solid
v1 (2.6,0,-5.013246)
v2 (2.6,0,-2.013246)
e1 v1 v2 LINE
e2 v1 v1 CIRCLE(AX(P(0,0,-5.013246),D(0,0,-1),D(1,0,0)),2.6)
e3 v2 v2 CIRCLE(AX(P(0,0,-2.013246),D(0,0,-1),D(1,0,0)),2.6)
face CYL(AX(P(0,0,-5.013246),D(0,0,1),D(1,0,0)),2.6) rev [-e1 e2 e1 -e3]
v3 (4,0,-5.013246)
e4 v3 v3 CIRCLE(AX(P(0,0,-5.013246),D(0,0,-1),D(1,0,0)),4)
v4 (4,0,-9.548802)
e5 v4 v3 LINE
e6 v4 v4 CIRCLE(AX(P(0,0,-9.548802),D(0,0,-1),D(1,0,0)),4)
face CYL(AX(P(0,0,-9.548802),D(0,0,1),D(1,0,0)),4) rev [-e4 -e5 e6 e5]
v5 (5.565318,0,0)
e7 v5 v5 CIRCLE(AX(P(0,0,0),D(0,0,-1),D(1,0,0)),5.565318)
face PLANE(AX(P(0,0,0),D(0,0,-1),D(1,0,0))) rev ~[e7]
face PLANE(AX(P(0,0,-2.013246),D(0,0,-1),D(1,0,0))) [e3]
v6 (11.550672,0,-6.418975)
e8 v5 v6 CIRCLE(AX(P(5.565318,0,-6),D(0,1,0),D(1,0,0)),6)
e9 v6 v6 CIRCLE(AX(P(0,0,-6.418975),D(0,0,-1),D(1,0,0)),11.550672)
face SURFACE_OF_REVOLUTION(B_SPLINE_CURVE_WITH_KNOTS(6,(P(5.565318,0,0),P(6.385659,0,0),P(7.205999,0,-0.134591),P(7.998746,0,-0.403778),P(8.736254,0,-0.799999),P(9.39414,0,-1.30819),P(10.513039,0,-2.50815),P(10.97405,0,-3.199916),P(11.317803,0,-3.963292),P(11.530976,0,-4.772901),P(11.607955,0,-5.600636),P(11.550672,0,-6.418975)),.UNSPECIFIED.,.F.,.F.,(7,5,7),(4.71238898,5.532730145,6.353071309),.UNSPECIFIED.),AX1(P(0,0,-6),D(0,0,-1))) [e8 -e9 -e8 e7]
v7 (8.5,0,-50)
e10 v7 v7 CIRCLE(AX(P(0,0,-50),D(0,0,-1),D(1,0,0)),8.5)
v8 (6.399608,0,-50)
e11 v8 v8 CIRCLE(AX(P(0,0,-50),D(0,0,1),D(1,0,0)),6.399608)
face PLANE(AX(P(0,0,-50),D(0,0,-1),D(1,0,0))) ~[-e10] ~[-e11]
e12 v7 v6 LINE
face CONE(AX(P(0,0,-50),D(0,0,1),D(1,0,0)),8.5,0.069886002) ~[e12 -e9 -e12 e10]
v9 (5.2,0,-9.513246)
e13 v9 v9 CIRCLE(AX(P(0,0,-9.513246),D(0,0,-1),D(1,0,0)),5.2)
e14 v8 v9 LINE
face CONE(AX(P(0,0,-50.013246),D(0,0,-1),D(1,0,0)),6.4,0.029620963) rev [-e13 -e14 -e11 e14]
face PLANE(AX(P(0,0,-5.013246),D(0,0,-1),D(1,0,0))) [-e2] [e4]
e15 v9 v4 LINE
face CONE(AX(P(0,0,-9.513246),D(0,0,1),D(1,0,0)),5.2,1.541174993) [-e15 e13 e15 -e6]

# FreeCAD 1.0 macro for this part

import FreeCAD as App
import Part
import Sketcher

V = App.Vector
Q = App.Units.Quantity


def edges_at(feature, points):
    """Names of the edges that pass closest to the given points."""
    edges = feature.Shape.Edges
    near = lambda p: min(range(len(edges)), key=lambda i: edges[i].distToShape(Part.Vertex(*p))[0])
    return sorted({f"Edge{near(p) + 1}" for p in points})


def add_polygon(sketch, points):
    """Adds a closed chain of lines whose ends are joined by coincident constraints."""
    first, n = sketch.GeometryCount, len(points)
    for a, b in zip(points, points[1:] + points[:1]):
        sketch.addGeometry(Part.LineSegment(App.Vector(*a, 0), App.Vector(*b, 0)), False)
    for i in range(n):
        sketch.addConstraint(Sketcher.Constraint("Coincident", first + i, 2, first + (i + 1) % n, 1))

doc = App.newDocument("Part")
body = doc.addObject("PartDesign::Body", "Body")

# Sketch on XZ plane
sketch1 = body.newObject("Sketcher::SketchObject", "Sketch")
sketch1.AttachmentSupport = (doc.getObject("XZ_Plane"), [""])
sketch1.MapMode = "FlatFace"
add_polygon(sketch1, [(12, 0), (0, 0), (0, -50), (8, -50)])  # lines 0-3
sketch1.addConstraint([
    Sketcher.Constraint("Horizontal", 0),
    Sketcher.Constraint("Vertical", 1),
    Sketcher.Constraint("Horizontal", 2),
    Sketcher.Constraint("Coincident", 0, 2, -1, 1),
    Sketcher.Constraint("DistanceX", 0, 2, 0, 1, Q("12 mm")),
    Sketcher.Constraint("DistanceY", 1, 2, 1, 1, Q("50 mm")),
    Sketcher.Constraint("DistanceX", 2, 1, 2, 2, Q("8.5 mm")),
])
revolution = body.newObject("PartDesign::Revolution", "Revolution")
revolution.Profile = sketch1
revolution.ReferenceAxis = (sketch1, ["V_Axis"])
revolution.Angle = 360

# Sketch on XZ plane
sketch2 = body.newObject("Sketcher::SketchObject", "Sketch001")
sketch2.AttachmentSupport = (doc.getObject("XZ_Plane"), [""])
sketch2.MapMode = "FlatFace"
add_polygon(sketch2, [(2.6, -2), (0, -2), (0, -50), (6.4, -50), (5.2, -9.5), (4, -9.5), (4, -5), (2.6, -5)])  # lines 0-7
sketch2.addConstraint([
    Sketcher.Constraint("Horizontal", 0),
    Sketcher.Constraint("Vertical", 1),
    Sketcher.Constraint("Horizontal", 2),
    Sketcher.Constraint("Vertical", 5),
    Sketcher.Constraint("Horizontal", 6),
    Sketcher.Constraint("Vertical", 7),
    Sketcher.Constraint("PointOnObject", 0, 2, -2),
    Sketcher.Constraint("Perpendicular", 3, 4),
    Sketcher.Constraint("DistanceY", 1, 2, 1, 1, Q("48 mm")),
    Sketcher.Constraint("DistanceY", 7, 1, 7, 2, Q("3 mm")),
    Sketcher.Constraint("DistanceX", 0, 2, 0, 1, Q("2.6 mm")),
    Sketcher.Constraint("DistanceX", 2, 1, 2, 2, Q("6.4 mm")),
    Sketcher.Constraint("DistanceX", 6, 2, 6, 1, Q("1.4 mm")),
    Sketcher.Constraint("DistanceX", -1, 1, 3, 2, Q("5.2 mm")),
    Sketcher.Constraint("DistanceY", 3, 2, 0, 2, Q("7.5 mm")),
    Sketcher.Constraint("DistanceY", 0, 2, -1, 1, Q("2.013246 mm")),
])
groove = body.newObject("PartDesign::Groove", "Groove")
groove.Profile = sketch2
groove.ReferenceAxis = (sketch2, ["V_Axis"])
groove.Angle = 360
doc.recompute()

fillet = body.newObject("PartDesign::Fillet", "Fillet")
fillet.Base = (groove, edges_at(groove, [(-12, 0, 0)]))
fillet.Radius = 6

doc.recompute()
